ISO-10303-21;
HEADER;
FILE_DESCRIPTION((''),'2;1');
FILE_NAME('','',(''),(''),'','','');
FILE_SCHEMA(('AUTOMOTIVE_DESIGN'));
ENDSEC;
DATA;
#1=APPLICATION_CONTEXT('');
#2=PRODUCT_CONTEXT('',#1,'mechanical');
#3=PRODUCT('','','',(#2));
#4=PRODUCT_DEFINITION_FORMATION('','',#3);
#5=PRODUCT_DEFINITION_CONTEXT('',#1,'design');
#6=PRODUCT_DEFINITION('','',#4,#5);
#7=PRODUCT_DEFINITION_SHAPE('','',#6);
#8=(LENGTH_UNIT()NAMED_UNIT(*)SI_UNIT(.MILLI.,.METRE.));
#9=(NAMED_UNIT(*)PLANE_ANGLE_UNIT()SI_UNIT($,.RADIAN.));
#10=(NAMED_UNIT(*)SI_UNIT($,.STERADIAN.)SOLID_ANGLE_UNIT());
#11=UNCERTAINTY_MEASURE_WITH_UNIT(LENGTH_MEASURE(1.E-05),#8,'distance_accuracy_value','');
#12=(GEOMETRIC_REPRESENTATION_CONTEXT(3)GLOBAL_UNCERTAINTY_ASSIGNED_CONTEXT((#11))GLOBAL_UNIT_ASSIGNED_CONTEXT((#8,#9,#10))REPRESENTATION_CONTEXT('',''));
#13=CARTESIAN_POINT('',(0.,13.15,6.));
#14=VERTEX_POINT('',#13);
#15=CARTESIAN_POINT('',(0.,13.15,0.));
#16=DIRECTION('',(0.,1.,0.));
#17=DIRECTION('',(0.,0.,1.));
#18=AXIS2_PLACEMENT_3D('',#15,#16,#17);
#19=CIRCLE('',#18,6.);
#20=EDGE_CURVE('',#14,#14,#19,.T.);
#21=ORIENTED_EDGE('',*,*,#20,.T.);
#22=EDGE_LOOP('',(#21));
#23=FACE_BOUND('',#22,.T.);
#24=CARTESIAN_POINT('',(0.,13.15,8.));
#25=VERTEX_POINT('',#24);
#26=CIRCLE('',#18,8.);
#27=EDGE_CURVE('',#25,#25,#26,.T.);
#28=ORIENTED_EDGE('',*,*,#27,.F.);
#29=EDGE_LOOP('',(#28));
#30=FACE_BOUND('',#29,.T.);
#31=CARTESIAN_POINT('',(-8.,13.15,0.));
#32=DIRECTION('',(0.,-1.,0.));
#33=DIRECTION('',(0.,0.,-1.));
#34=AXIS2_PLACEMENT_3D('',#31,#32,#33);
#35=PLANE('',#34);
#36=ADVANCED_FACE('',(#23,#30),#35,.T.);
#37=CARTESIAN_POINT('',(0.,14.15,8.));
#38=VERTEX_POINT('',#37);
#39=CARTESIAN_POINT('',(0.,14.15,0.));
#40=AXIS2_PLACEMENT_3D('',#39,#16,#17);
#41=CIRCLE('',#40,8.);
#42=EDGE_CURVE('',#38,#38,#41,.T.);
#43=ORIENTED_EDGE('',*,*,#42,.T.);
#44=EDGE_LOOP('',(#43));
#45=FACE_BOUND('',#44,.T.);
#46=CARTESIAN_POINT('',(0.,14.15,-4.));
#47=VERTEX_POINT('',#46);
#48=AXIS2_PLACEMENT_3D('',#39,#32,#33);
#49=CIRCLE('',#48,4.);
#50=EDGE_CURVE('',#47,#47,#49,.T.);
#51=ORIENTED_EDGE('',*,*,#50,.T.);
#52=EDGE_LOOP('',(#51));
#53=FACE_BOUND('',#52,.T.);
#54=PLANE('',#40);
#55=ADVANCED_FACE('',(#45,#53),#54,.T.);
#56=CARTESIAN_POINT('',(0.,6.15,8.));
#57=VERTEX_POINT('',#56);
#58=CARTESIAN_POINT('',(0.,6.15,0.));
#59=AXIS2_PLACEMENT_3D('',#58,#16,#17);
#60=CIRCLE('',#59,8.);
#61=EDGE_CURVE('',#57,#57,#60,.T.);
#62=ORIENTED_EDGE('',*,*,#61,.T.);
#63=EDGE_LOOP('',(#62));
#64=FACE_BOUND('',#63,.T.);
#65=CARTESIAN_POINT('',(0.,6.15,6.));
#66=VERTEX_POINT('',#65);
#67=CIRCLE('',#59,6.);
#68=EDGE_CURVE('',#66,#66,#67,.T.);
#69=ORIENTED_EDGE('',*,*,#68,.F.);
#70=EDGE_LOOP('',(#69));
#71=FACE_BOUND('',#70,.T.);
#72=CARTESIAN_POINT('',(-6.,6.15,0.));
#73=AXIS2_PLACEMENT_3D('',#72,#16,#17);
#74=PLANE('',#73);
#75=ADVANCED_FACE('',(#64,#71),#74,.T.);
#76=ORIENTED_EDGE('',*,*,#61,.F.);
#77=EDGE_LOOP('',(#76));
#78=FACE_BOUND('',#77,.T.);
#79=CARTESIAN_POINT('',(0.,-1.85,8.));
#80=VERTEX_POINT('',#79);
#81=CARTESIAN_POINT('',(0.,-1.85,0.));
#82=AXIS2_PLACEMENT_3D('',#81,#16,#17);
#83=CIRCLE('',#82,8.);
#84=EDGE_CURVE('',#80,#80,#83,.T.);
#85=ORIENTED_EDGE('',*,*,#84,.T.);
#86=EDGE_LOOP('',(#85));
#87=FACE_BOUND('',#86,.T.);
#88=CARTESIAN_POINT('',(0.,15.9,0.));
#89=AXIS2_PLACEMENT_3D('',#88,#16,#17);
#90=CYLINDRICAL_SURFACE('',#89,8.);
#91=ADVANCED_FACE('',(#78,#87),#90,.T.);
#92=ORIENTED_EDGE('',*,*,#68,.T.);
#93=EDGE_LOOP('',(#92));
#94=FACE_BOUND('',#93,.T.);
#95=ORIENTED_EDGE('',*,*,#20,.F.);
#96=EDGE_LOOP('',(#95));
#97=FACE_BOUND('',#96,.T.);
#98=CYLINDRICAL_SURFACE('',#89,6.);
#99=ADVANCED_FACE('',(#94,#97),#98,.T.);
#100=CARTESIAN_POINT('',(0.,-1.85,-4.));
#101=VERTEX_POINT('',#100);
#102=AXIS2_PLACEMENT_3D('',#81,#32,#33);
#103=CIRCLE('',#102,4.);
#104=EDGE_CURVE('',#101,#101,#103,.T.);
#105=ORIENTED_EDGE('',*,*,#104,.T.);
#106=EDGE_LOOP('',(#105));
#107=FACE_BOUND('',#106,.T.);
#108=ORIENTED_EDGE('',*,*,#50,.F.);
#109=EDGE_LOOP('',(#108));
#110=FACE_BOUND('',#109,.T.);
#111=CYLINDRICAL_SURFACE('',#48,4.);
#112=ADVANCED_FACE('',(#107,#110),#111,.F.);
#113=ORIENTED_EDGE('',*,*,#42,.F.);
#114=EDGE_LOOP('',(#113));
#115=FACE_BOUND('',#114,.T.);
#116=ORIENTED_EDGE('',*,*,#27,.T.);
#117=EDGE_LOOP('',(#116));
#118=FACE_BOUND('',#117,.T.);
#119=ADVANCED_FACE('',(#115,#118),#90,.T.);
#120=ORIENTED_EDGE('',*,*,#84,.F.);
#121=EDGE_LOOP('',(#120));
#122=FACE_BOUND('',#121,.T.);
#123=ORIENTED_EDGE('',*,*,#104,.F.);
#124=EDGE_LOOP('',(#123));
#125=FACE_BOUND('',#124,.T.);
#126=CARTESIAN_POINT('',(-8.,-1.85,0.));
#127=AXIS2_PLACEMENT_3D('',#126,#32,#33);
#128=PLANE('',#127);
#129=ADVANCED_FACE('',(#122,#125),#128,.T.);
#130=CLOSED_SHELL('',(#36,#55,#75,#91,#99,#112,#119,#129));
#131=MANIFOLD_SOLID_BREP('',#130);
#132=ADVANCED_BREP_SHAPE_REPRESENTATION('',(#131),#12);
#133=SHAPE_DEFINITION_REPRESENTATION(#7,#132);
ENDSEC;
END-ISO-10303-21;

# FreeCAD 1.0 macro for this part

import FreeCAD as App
import Part
import Sketcher

V = App.Vector
Q = App.Units.Quantity


def add_polygon(sketch, points):
    """Adds a closed chain of lines whose ends are joined by coincident constraints."""
    first, n = sketch.GeometryCount, len(points)
    for a, b in zip(points, points[1:] + points[:1]):
        sketch.addGeometry(Part.LineSegment(App.Vector(*a, 0), App.Vector(*b, 0)), False)
    for i in range(n):
        sketch.addConstraint(Sketcher.Constraint("Coincident", first + i, 2, first + (i + 1) % n, 1))

doc = App.newDocument("Part")
body = doc.addObject("PartDesign::Body", "Body")

sketch1 = body.newObject("Sketcher::SketchObject", "Sketch")
sketch1.AttachmentSupport = (doc.getObject("XY_Plane"), [""])
sketch1.MapMode = "FlatFace"
add_polygon(sketch1, [(0, 14.2), (-8, 14.2), (-8, 13.2), (-6, 13.2), (-6, 6.2), (-8, 6.2), (-8, -1.9), (0, -1.9)])
sketch1.addConstraint([
    Sketcher.Constraint("Horizontal", 0),
    Sketcher.Constraint("Vertical", 1),
    Sketcher.Constraint("Horizontal", 2),
    Sketcher.Constraint("Vertical", 3),
    Sketcher.Constraint("Horizontal", 4),
    Sketcher.Constraint("Vertical", 5),
    Sketcher.Constraint("Horizontal", 6),
    Sketcher.Constraint("Vertical", 7),
    Sketcher.Constraint("PointOnObject", 6, 2, -2),
    Sketcher.Constraint("Vertical", 1, 2, 4, 2),
    Sketcher.Constraint("Equal", 6, 5),
    Sketcher.Constraint("DistanceX", 0, 2, 0, 1, Q("8 mm")),
    Sketcher.Constraint("DistanceX", 2, 1, 2, 2, Q("2 mm")),
    Sketcher.Constraint("DistanceY", 1, 2, 1, 1, Q("1 mm")),
    Sketcher.Constraint("DistanceY", 3, 2, 3, 1, Q("7 mm")),
    Sketcher.Constraint("DistanceY", -1, 1, 0, 2, Q("14.15 mm")),
])
revolution = body.newObject("PartDesign::Revolution", "Revolution")
revolution.Profile = sketch1
revolution.ReferenceAxis = (sketch1, ["V_Axis"])
revolution.Angle = 360

sketch2 = body.newObject("Sketcher::SketchObject", "Sketch001")
sketch2.AttachmentSupport = (doc.getObject("XZ_Plane"), [""])
sketch2.MapMode = "FlatFace"
sketch2.AttachmentOffset = App.Placement(V(0, 0, 1.85), App.Rotation())
sketch2.addGeometry(Part.Circle(V(0, 0, 0), V(0, 0, 1), 4), False)
sketch2.addConstraint([
    Sketcher.Constraint("Coincident", 0, 3, -1, 1),
    Sketcher.Constraint("Diameter", 0, Q("8 mm")),
])
pocket1 = body.newObject("PartDesign::Pocket", "Pocket")
pocket1.Profile = sketch2
pocket1.Type = "ThroughAll"

doc.recompute()
